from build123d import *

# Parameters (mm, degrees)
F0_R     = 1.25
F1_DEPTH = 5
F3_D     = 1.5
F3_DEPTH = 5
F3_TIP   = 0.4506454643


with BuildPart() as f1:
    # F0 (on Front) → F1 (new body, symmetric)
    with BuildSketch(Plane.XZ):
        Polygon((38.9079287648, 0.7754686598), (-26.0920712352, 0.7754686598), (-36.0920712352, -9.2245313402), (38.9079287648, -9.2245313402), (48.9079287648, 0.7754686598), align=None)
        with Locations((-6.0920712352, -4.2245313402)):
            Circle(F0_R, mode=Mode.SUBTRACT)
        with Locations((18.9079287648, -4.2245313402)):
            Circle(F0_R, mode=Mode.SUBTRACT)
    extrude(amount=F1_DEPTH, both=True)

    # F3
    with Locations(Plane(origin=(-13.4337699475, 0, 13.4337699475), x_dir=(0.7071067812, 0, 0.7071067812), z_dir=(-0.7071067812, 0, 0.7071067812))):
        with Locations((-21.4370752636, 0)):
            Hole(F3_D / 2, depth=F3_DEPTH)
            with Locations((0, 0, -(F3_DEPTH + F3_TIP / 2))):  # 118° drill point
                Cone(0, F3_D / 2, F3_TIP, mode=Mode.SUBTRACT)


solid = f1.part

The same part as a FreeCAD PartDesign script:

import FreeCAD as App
import Part
import Sketcher
Q = App.Units.Quantity

doc = App.newDocument("Part")
params = doc.addObject("Spreadsheet::Sheet", "Params")
for row, (alias, value) in enumerate([
    ("sketch1_diameter", "2.5 mm"),
    ("sketch1_width", "75 mm"),
    ("pad1_length", "10 mm"),
    ("sketch2_diameter", "1.5 mm"),
    ("hole_diameter", "1.5 mm"),
    ("hole_depth", "5 mm"),
], start=1):
    params.set(f"A{row}", alias)
    params.set(f"B{row}", "=" + value)
    params.setAlias(f"B{row}", alias)

body = doc.addObject("PartDesign::Body", "Body")

# Sketch on XZ plane
sketch1 = doc.addObject("Sketcher::SketchObject", "Sketch")
body.addObject(sketch1)
sketch1.AttachmentSupport = (doc.XZ_Plane, [""])
sketch1.MapMode = "FlatFace"
sketch1.addGeometry(Part.LineSegment(App.Vector(-26.1, 0.8, 0), App.Vector(-36.1, -9.2, 0)), False)
sketch1.addGeometry(Part.LineSegment(App.Vector(-36.1, -9.2, 0), App.Vector(38.9, -9.2, 0)), False)
sketch1.addGeometry(Part.LineSegment(App.Vector(38.9, -9.2, 0), App.Vector(48.9, 0.8, 0)), False)
sketch1.addGeometry(Part.LineSegment(App.Vector(48.9, 0.8, 0), App.Vector(-26.1, 0.8, 0)), False)
sketch1.addGeometry(Part.Circle(App.Vector(-6.1, -4.2, 0), App.Vector(0, 0, 1), 1.2), False)
sketch1.addGeometry(Part.Circle(App.Vector(18.9, -4.2, 0), App.Vector(0, 0, 1), 1.2), False)
sketch1.addConstraint(Sketcher.Constraint("Coincident", 0, 2, 1, 1))
sketch1.addConstraint(Sketcher.Constraint("Coincident", 1, 2, 2, 1))
sketch1.addConstraint(Sketcher.Constraint("Coincident", 2, 2, 3, 1))
sketch1.addConstraint(Sketcher.Constraint("Coincident", 3, 2, 0, 1))
sketch1.addConstraint(Sketcher.Constraint("Horizontal", 1))
sketch1.addConstraint(Sketcher.Constraint("Horizontal", 3))
sketch1.addConstraint(Sketcher.Constraint("Equal", 4, 5))
sketch1.addConstraint(Sketcher.Constraint("Parallel", 0, 2))
sketch1.addConstraint(Sketcher.Constraint("Horizontal", 4, 3, 5, 3))
sketch1.addConstraint(Sketcher.Constraint("Diameter", 4, 2.5))
sketch1.addConstraint(Sketcher.Constraint("DistanceX", 1, 1, 1, 2, 75.0))
sketch1.addConstraint(Sketcher.Constraint("Angle", 0, Q("-135 deg")))
sketch1.addConstraint(Sketcher.Constraint("DistanceX", 4, 3, 5, 3, 25.0))
sketch1.addConstraint(Sketcher.Constraint("DistanceX", 0, 2, 4, 3, 30.0))
sketch1.addConstraint(Sketcher.Constraint("DistanceY", 0, 2, 4, 3, 5.0))
sketch1.addConstraint(Sketcher.Constraint("DistanceX", 1, 2, 2, 2, 10.0))
sketch1.addConstraint(Sketcher.Constraint("DistanceX", 4, 3, -1, 1, 6.092071))
sketch1.addConstraint(Sketcher.Constraint("DistanceY", 4, 3, -1, 1, 4.224531))
sketch1.setExpression("Constraints[9]", "Params.sketch1_diameter")
sketch1.setExpression("Constraints[10]", "Params.sketch1_width")
pad1 = doc.addObject("PartDesign::Pad", "Pad")
body.addObject(pad1)
pad1.Profile = sketch1
pad1.setExpression("Length", "Params.pad1_length")
pad1.Midplane = True

# Sketch on an angled plane
sketch2 = doc.addObject("Sketcher::SketchObject", "Sketch001")
body.addObject(sketch2)
sketch2.Placement = App.Placement(App.Vector(-13.43377, 0, 13.43377), App.Rotation(App.Vector(0.707106781, 0, 0.707106781), App.Vector(0, 0.999999999, 0), App.Vector(-0.707106781, 0, 0.707106781), "ZXY"))
sketch2.addGeometry(Part.Circle(App.Vector(-21.4, 0, 0), App.Vector(0, 0, 1), 0.8), False)
sketch2.addConstraint(Sketcher.Constraint("PointOnObject", 0, 3, -1))
sketch2.addConstraint(Sketcher.Constraint("Diameter", 0, 1.5))
sketch2.addConstraint(Sketcher.Constraint("DistanceX", 0, 3, -1, 1, 21.437075))
sketch2.setExpression("Constraints[1]", "Params.sketch2_diameter")
doc.recompute()
hole = doc.addObject("PartDesign::Hole", "Hole")
body.addObject(hole)
hole.Profile = sketch2
hole.ThreadType = "None"
hole.setExpression("Diameter", "Params.hole_diameter")
hole.DepthType = "Dimension"
hole.setExpression("Depth", "Params.hole_depth")
hole.DrillPoint = "Angled"
hole.DrillPointAngle = 118

doc.recompute()
